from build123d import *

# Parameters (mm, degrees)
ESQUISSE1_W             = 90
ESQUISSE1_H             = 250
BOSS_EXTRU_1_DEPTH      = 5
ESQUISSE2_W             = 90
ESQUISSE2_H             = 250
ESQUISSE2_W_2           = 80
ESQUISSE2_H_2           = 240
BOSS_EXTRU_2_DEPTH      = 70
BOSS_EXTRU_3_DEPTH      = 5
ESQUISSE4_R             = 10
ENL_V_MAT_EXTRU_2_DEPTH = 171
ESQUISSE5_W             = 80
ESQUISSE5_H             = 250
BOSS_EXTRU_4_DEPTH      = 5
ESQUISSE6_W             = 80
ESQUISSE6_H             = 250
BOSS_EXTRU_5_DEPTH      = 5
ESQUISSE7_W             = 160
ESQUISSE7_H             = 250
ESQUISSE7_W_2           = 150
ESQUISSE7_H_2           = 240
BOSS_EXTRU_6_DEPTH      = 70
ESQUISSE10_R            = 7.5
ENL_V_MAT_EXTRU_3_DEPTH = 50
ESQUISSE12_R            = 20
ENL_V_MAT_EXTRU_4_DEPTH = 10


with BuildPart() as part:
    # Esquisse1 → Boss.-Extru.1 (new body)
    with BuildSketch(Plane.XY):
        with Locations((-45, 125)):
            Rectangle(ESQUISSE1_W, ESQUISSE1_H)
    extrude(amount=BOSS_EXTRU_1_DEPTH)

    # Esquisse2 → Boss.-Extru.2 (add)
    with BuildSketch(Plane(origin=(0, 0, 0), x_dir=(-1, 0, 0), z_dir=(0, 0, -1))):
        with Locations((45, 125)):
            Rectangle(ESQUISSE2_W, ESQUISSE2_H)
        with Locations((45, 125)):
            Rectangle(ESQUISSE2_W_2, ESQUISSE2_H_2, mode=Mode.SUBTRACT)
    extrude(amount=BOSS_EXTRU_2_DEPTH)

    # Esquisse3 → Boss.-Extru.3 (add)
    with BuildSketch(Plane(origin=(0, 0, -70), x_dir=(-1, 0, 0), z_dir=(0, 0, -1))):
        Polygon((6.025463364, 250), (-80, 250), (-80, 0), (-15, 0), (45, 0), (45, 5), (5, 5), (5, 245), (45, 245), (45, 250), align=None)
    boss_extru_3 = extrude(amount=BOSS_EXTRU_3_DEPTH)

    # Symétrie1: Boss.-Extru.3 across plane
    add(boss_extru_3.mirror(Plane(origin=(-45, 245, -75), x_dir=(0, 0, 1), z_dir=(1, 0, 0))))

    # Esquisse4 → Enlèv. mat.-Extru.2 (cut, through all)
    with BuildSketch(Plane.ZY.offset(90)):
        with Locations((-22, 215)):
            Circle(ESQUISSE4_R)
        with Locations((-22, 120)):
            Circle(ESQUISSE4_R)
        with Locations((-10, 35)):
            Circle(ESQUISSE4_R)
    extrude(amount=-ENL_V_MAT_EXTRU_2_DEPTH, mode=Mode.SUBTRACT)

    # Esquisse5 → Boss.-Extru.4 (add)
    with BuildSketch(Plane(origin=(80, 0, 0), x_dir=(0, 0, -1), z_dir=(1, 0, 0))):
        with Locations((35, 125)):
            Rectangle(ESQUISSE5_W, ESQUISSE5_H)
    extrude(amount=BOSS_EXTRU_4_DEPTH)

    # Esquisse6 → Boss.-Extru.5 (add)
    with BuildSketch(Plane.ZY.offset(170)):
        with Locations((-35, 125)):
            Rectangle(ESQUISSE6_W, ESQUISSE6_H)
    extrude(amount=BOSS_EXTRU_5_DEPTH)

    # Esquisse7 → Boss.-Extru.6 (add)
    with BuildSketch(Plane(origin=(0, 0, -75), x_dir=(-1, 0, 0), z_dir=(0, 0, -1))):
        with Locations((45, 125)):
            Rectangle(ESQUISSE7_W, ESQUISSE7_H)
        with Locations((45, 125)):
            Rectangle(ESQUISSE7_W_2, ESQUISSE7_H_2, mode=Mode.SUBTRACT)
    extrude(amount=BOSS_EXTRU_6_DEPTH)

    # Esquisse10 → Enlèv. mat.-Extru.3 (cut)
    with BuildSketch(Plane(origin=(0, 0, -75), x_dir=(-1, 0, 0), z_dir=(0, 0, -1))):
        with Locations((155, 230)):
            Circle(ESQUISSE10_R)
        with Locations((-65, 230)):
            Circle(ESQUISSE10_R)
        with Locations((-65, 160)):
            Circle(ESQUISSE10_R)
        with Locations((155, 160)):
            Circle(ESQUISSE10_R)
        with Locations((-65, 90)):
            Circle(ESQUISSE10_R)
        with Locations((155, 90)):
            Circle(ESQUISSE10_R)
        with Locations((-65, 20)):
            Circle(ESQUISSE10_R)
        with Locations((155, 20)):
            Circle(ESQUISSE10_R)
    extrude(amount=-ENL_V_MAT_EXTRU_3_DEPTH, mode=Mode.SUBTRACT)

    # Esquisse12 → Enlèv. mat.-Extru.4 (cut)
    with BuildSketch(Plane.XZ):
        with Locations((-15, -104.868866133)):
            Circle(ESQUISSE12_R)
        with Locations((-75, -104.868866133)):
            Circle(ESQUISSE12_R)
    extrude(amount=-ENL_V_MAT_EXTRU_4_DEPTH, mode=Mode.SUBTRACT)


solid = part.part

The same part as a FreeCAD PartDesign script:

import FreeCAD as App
import Part
import Sketcher
from FreeCAD import Vector

doc = App.newDocument("Part")
body = doc.addObject("PartDesign::Body", "Body")

sketch1 = body.newObject("Sketcher::SketchObject", "Sketch")
sketch1.AttachmentSupport = (doc.getObject("XY_Plane"), [""])
sketch1.MapMode = "FlatFace"
sketch1.addGeometry([
    Part.LineSegment(Vector(-90, 250, 0), Vector(-90, 0, 0)),
    Part.LineSegment(Vector(-90, 0, 0), Vector(0, 0, 0)),
    Part.LineSegment(Vector(0, 0, 0), Vector(0, 250, 0)),
    Part.LineSegment(Vector(0, 250, 0), Vector(-90, 250, 0)),
], False)
sketch1.addConstraint([
    Sketcher.Constraint("Coincident", 0, 2, 1, 1),
    Sketcher.Constraint("Coincident", 1, 2, 2, 1),
    Sketcher.Constraint("Coincident", 2, 2, 3, 1),
    Sketcher.Constraint("Coincident", 3, 2, 0, 1),
    Sketcher.Constraint("Vertical", 0),
    Sketcher.Constraint("Horizontal", 1),
    Sketcher.Constraint("Vertical", 2),
    Sketcher.Constraint("Horizontal", 3),
    Sketcher.Constraint("Coincident", 1, 2, -1, 1),
    Sketcher.Constraint("DistanceX", 1, 1, 1, 2, 90.0),
    Sketcher.Constraint("DistanceY", 0, 2, 0, 1, 250.0),
])
pad1 = body.newObject("PartDesign::Pad", "Pad")
pad1.Profile = sketch1
pad1.Length = 5

sketch2 = body.newObject("Sketcher::SketchObject", "Sketch001")
sketch2.AttachmentSupport = (doc.getObject("XY_Plane"), [""])
sketch2.MapMode = "FlatFace"
sketch2.addGeometry([
    Part.LineSegment(Vector(0, 250, 0), Vector(0, 0, 0)),
    Part.LineSegment(Vector(0, 0, 0), Vector(-90, 0, 0)),
    Part.LineSegment(Vector(-90, 0, 0), Vector(-90, 250, 0)),
    Part.LineSegment(Vector(-90, 250, 0), Vector(0, 250, 0)),
    Part.LineSegment(Vector(-85, 5, 0), Vector(-5, 5, 0)),
    Part.LineSegment(Vector(-5, 5, 0), Vector(-5, 245, 0)),
    Part.LineSegment(Vector(-5, 245, 0), Vector(-85, 245, 0)),
    Part.LineSegment(Vector(-85, 245, 0), Vector(-85, 5, 0)),
], False)
sketch2.addConstraint([
    Sketcher.Constraint("Coincident", 0, 2, 1, 1),
    Sketcher.Constraint("Coincident", 1, 2, 2, 1),
    Sketcher.Constraint("Coincident", 2, 2, 3, 1),
    Sketcher.Constraint("Coincident", 3, 2, 0, 1),
    Sketcher.Constraint("Coincident", 4, 2, 5, 1),
    Sketcher.Constraint("Coincident", 5, 2, 6, 1),
    Sketcher.Constraint("Coincident", 6, 2, 7, 1),
    Sketcher.Constraint("Coincident", 7, 2, 4, 1),
    Sketcher.Constraint("Vertical", 0),
    Sketcher.Constraint("Horizontal", 1),
    Sketcher.Constraint("Vertical", 2),
    Sketcher.Constraint("Horizontal", 3),
    Sketcher.Constraint("Horizontal", 4),
    Sketcher.Constraint("Vertical", 5),
    Sketcher.Constraint("Horizontal", 6),
    Sketcher.Constraint("Vertical", 7),
    Sketcher.Constraint("Coincident", 0, 2, -1, 1),
    Sketcher.Constraint("DistanceX", 1, 2, 1, 1, 90.0),
    Sketcher.Constraint("DistanceX", 4, 1, 4, 2, 80.0),
    Sketcher.Constraint("DistanceY", 0, 2, 0, 1, 250.0),
    Sketcher.Constraint("DistanceY", 5, 1, 5, 2, 240.0),
    Sketcher.Constraint("DistanceX", 4, 2, -1, 1, 5.0),
    Sketcher.Constraint("DistanceY", -1, 1, 4, 2, 5.0),
])
pad2 = body.newObject("PartDesign::Pad", "Pad001")
pad2.Profile = sketch2
pad2.Length = 70
pad2.Reversed = True

sketch3 = body.newObject("Sketcher::SketchObject", "Sketch002")
sketch3.AttachmentSupport = (doc.getObject("XY_Plane"), [""])
sketch3.MapMode = "FlatFace"
sketch3.AttachmentOffset = App.Placement(Vector(0, 0, -70), App.Rotation())
sketch3.addGeometry([
    Part.LineSegment(Vector(80, 250, 0), Vector(80, 0, 0)),
    Part.LineSegment(Vector(80, 0, 0), Vector(-45, 0, 0)),
    Part.LineSegment(Vector(-45, 0, 0), Vector(-45, 5, 0)),
    Part.LineSegment(Vector(-45, 5, 0), Vector(-5, 5, 0)),
    Part.LineSegment(Vector(-5, 5, 0), Vector(-5, 245, 0)),
    Part.LineSegment(Vector(-5, 245, 0), Vector(-45, 245, 0)),
    Part.LineSegment(Vector(-45, 245, 0), Vector(-45, 250, 0)),
    Part.LineSegment(Vector(-45, 250, 0), Vector(80, 250, 0)),
], False)
sketch3.addConstraint([
    Sketcher.Constraint("Coincident", 0, 2, 1, 1),
    Sketcher.Constraint("Coincident", 1, 2, 2, 1),
    Sketcher.Constraint("Coincident", 2, 2, 3, 1),
    Sketcher.Constraint("Coincident", 3, 2, 4, 1),
    Sketcher.Constraint("Coincident", 4, 2, 5, 1),
    Sketcher.Constraint("Coincident", 5, 2, 6, 1),
    Sketcher.Constraint("Coincident", 6, 2, 7, 1),
    Sketcher.Constraint("Coincident", 7, 2, 0, 1),
    Sketcher.Constraint("Vertical", 0),
    Sketcher.Constraint("Horizontal", 1),
    Sketcher.Constraint("Vertical", 2),
    Sketcher.Constraint("Horizontal", 3),
    Sketcher.Constraint("Vertical", 4),
    Sketcher.Constraint("Horizontal", 5),
    Sketcher.Constraint("Vertical", 6),
    Sketcher.Constraint("Horizontal", 7),
    Sketcher.Constraint("PointOnObject", 0, 2, -1),
    Sketcher.Constraint("Vertical", 2, 2, 5, 2),
    Sketcher.Constraint("Equal", 2, 6),
    Sketcher.Constraint("DistanceX", 1, 2, 1, 1, 125.0),
    Sketcher.Constraint("DistanceX", 3, 1, 3, 2, 40.0),
    Sketcher.Constraint("DistanceY", 0, 2, 0, 1, 250.0),
    Sketcher.Constraint("DistanceY", 2, 1, 2, 2, 5.0),
    Sketcher.Constraint("DistanceX", -1, 1, 0, 2, 80.0),
])
pad3 = body.newObject("PartDesign::Pad", "Pad002")
pad3.Profile = sketch3
pad3.Length = 5
pad3.Reversed = True
doc.recompute()

datumplane = body.newObject("PartDesign::Plane", "DatumPlane")
datumplane.AttachmentSupport = (doc.getObject("YZ_Plane"), [""])
datumplane.MapMode = "FlatFace"
datumplane.AttachmentOffset = App.Placement(Vector(0, 0, -45), App.Rotation())
mirrored = body.newObject("PartDesign::Mirrored", "Mirrored")
mirrored.Originals = [pad3]
mirrored.MirrorPlane = (datumplane, [""])
body.Tip = mirrored

sketch4 = body.newObject("Sketcher::SketchObject", "Sketch003")
sketch4.AttachmentSupport = (doc.getObject("YZ_Plane"), [""])
sketch4.MapMode = "FlatFace"
sketch4.AttachmentOffset = App.Placement(Vector(0, 0, -90), App.Rotation())
sketch4.addGeometry([
    Part.Circle(Vector(215, -22, 0), Vector(0, 0, 1), 10),
    Part.Circle(Vector(120, -22, 0), Vector(0, 0, 1), 10),
    Part.Circle(Vector(35, -10, 0), Vector(0, 0, 1), 10),
], False)
sketch4.addConstraint([
    Sketcher.Constraint("Equal", 0, 1),
    Sketcher.Constraint("Equal", 1, 2),
    Sketcher.Constraint("Horizontal", 0, 3, 1, 3),
    Sketcher.Constraint("Diameter", 0, 20.0),
    Sketcher.Constraint("DistanceX", -1, 1, 0, 3, 215.0),
    Sketcher.Constraint("DistanceY", 0, 3, -1, 1, 22.0),
    Sketcher.Constraint("DistanceX", -1, 1, 1, 3, 120.0),
    Sketcher.Constraint("DistanceX", -1, 1, 2, 3, 35.0),
    Sketcher.Constraint("DistanceY", 2, 3, -1, 1, 10.0),
])
pocket1 = body.newObject("PartDesign::Pocket", "Pocket")
pocket1.Profile = sketch4
pocket1.Type = "ThroughAll"
pocket1.Reversed = True

sketch5 = body.newObject("Sketcher::SketchObject", "Sketch004")
sketch5.AttachmentSupport = (doc.getObject("YZ_Plane"), [""])
sketch5.MapMode = "FlatFace"
sketch5.AttachmentOffset = App.Placement(Vector(0, 0, 80), App.Rotation())
sketch5.addGeometry([
    Part.LineSegment(Vector(250, 5, 0), Vector(0, 5, 0)),
    Part.LineSegment(Vector(0, 5, 0), Vector(0, -75, 0)),
    Part.LineSegment(Vector(0, -75, 0), Vector(250, -75, 0)),
    Part.LineSegment(Vector(250, -75, 0), Vector(250, 5, 0)),
], False)
sketch5.addConstraint([
    Sketcher.Constraint("Coincident", 0, 2, 1, 1),
    Sketcher.Constraint("Coincident", 1, 2, 2, 1),
    Sketcher.Constraint("Coincident", 2, 2, 3, 1),
    Sketcher.Constraint("Coincident", 3, 2, 0, 1),
    Sketcher.Constraint("Horizontal", 0),
    Sketcher.Constraint("Vertical", 1),
    Sketcher.Constraint("Horizontal", 2),
    Sketcher.Constraint("Vertical", 3),
    Sketcher.Constraint("PointOnObject", 0, 2, -2),
    Sketcher.Constraint("DistanceX", 0, 2, 0, 1, 250.0),
    Sketcher.Constraint("DistanceY", 1, 2, 1, 1, 80.0),
    Sketcher.Constraint("DistanceY", -1, 1, 0, 2, 5.0),
])
pad4 = body.newObject("PartDesign::Pad", "Pad003")
pad4.Profile = sketch5
pad4.Length = 5

sketch6 = body.newObject("Sketcher::SketchObject", "Sketch005")
sketch6.AttachmentSupport = (doc.getObject("YZ_Plane"), [""])
sketch6.MapMode = "FlatFace"
sketch6.AttachmentOffset = App.Placement(Vector(0, 0, -170), App.Rotation())
sketch6.addGeometry([
    Part.LineSegment(Vector(250, -75, 0), Vector(0, -75, 0)),
    Part.LineSegment(Vector(0, -75, 0), Vector(0, 5, 0)),
    Part.LineSegment(Vector(0, 5, 0), Vector(250, 5, 0)),
    Part.LineSegment(Vector(250, 5, 0), Vector(250, -75, 0)),
], False)
sketch6.addConstraint([
    Sketcher.Constraint("Coincident", 0, 2, 1, 1),
    Sketcher.Constraint("Coincident", 1, 2, 2, 1),
    Sketcher.Constraint("Coincident", 2, 2, 3, 1),
    Sketcher.Constraint("Coincident", 3, 2, 0, 1),
    Sketcher.Constraint("Horizontal", 0),
    Sketcher.Constraint("Vertical", 1),
    Sketcher.Constraint("Horizontal", 2),
    Sketcher.Constraint("Vertical", 3),
    Sketcher.Constraint("PointOnObject", 0, 2, -2),
    Sketcher.Constraint("DistanceX", 0, 2, 0, 1, 250.0),
    Sketcher.Constraint("DistanceY", 1, 1, 1, 2, 80.0),
    Sketcher.Constraint("DistanceY", 0, 2, -1, 1, 75.0),
])
pad5 = body.newObject("PartDesign::Pad", "Pad004")
pad5.Profile = sketch6
pad5.Length = 5
pad5.Reversed = True

sketch7 = body.newObject("Sketcher::SketchObject", "Sketch006")
sketch7.AttachmentSupport = (doc.getObject("XY_Plane"), [""])
sketch7.MapMode = "FlatFace"
sketch7.AttachmentOffset = App.Placement(Vector(0, 0, -75), App.Rotation())
sketch7.addGeometry([
    Part.LineSegment(Vector(35, 250, 0), Vector(35, 0, 0)),
    Part.LineSegment(Vector(35, 0, 0), Vector(-125, 0, 0)),
    Part.LineSegment(Vector(-125, 0, 0), Vector(-125, 250, 0)),
    Part.LineSegment(Vector(-125, 250, 0), Vector(35, 250, 0)),
    Part.LineSegment(Vector(-120, 5, 0), Vector(30, 5, 0)),
    Part.LineSegment(Vector(30, 5, 0), Vector(30, 245, 0)),
    Part.LineSegment(Vector(30, 245, 0), Vector(-120, 245, 0)),
    Part.LineSegment(Vector(-120, 245, 0), Vector(-120, 5, 0)),
], False)
sketch7.addConstraint([
    Sketcher.Constraint("Coincident", 0, 2, 1, 1),
    Sketcher.Constraint("Coincident", 1, 2, 2, 1),
    Sketcher.Constraint("Coincident", 2, 2, 3, 1),
    Sketcher.Constraint("Coincident", 3, 2, 0, 1),
    Sketcher.Constraint("Coincident", 4, 2, 5, 1),
    Sketcher.Constraint("Coincident", 5, 2, 6, 1),
    Sketcher.Constraint("Coincident", 6, 2, 7, 1),
    Sketcher.Constraint("Coincident", 7, 2, 4, 1),
    Sketcher.Constraint("Vertical", 0),
    Sketcher.Constraint("Horizontal", 1),
    Sketcher.Constraint("Vertical", 2),
    Sketcher.Constraint("Horizontal", 3),
    Sketcher.Constraint("Horizontal", 4),
    Sketcher.Constraint("Vertical", 5),
    Sketcher.Constraint("Horizontal", 6),
    Sketcher.Constraint("Vertical", 7),
    Sketcher.Constraint("PointOnObject", 0, 2, -1),
    Sketcher.Constraint("DistanceX", 1, 2, 1, 1, 160.0),
    Sketcher.Constraint("DistanceX", 4, 1, 4, 2, 150.0),
    Sketcher.Constraint("DistanceY", 0, 2, 0, 1, 250.0),
    Sketcher.Constraint("DistanceY", 5, 1, 5, 2, 240.0),
    Sketcher.Constraint("DistanceX", -1, 1, 0, 2, 35.0),
    Sketcher.Constraint("DistanceX", -1, 1, 4, 2, 30.0),
    Sketcher.Constraint("DistanceY", -1, 1, 4, 2, 5.0),
])
pad6 = body.newObject("PartDesign::Pad", "Pad005")
pad6.Profile = sketch7
pad6.Length = 70
pad6.Reversed = True

sketch8 = body.newObject("Sketcher::SketchObject", "Sketch007")
sketch8.AttachmentSupport = (doc.getObject("XY_Plane"), [""])
sketch8.MapMode = "FlatFace"
sketch8.AttachmentOffset = App.Placement(Vector(0, 0, -75), App.Rotation())
sketch8.addGeometry([
    Part.Circle(Vector(-155, 230, 0), Vector(0, 0, 1), 8),
    Part.Circle(Vector(65, 230, 0), Vector(0, 0, 1), 8),
    Part.Circle(Vector(65, 160, 0), Vector(0, 0, 1), 8),
    Part.Circle(Vector(-155, 160, 0), Vector(0, 0, 1), 8),
    Part.Circle(Vector(65, 90, 0), Vector(0, 0, 1), 8),
    Part.Circle(Vector(-155, 90, 0), Vector(0, 0, 1), 8),
    Part.Circle(Vector(65, 20, 0), Vector(0, 0, 1), 8),
    Part.Circle(Vector(-155, 20, 0), Vector(0, 0, 1), 8),
], False)
sketch8.addConstraint([
    Sketcher.Constraint("Equal", 0, 1),
    Sketcher.Constraint("Equal", 1, 2),
    Sketcher.Constraint("Equal", 2, 3),
    Sketcher.Constraint("Equal", 3, 4),
    Sketcher.Constraint("Equal", 4, 5),
    Sketcher.Constraint("Equal", 5, 6),
    Sketcher.Constraint("Equal", 6, 7),
    Sketcher.Constraint("Horizontal", 0, 3, 1, 3),
    Sketcher.Constraint("Horizontal", 2, 3, 3, 3),
    Sketcher.Constraint("Horizontal", 4, 3, 5, 3),
    Sketcher.Constraint("Horizontal", 6, 3, 7, 3),
    Sketcher.Constraint("Vertical", 1, 3, 2, 3),
    Sketcher.Constraint("Vertical", 0, 3, 3, 3),
    Sketcher.Constraint("Vertical", 2, 3, 4, 3),
    Sketcher.Constraint("Vertical", 3, 3, 5, 3),
    Sketcher.Constraint("Vertical", 4, 3, 6, 3),
    Sketcher.Constraint("Vertical", 5, 3, 7, 3),
    Sketcher.Constraint("Diameter", 0, 15.0),
    Sketcher.Constraint("DistanceX", 0, 3, -1, 1, 155.0),
    Sketcher.Constraint("DistanceY", -1, 1, 0, 3, 230.0),
    Sketcher.Constraint("DistanceX", -1, 1, 1, 3, 65.0),
    Sketcher.Constraint("DistanceY", -1, 1, 2, 3, 160.0),
    Sketcher.Constraint("DistanceY", -1, 1, 4, 3, 90.0),
    Sketcher.Constraint("DistanceY", -1, 1, 6, 3, 20.0),
])
pocket2 = body.newObject("PartDesign::Pocket", "Pocket001")
pocket2.Profile = sketch8
pocket2.Length = 50
pocket2.Reversed = True

sketch9 = body.newObject("Sketcher::SketchObject", "Sketch008")
sketch9.AttachmentSupport = (doc.getObject("XZ_Plane"), [""])
sketch9.MapMode = "FlatFace"
sketch9.addGeometry([
    Part.Circle(Vector(-15, -105, 0), Vector(0, 0, 1), 20),
    Part.Circle(Vector(-75, -105, 0), Vector(0, 0, 1), 20),
], False)
sketch9.addConstraint([
    Sketcher.Constraint("Equal", 0, 1),
    Sketcher.Constraint("Horizontal", 0, 3, 1, 3),
    Sketcher.Constraint("Diameter", 0, 40.0),
    Sketcher.Constraint("DistanceX", 0, 3, -1, 1, 15.0),
    Sketcher.Constraint("DistanceX", 1, 3, -1, 1, 75.0),
    Sketcher.Constraint("DistanceY", 0, 3, -1, 1, 104.868866),
])
pocket3 = body.newObject("PartDesign::Pocket", "Pocket002")
pocket3.Profile = sketch9
pocket3.Length = 10

doc.recompute()
